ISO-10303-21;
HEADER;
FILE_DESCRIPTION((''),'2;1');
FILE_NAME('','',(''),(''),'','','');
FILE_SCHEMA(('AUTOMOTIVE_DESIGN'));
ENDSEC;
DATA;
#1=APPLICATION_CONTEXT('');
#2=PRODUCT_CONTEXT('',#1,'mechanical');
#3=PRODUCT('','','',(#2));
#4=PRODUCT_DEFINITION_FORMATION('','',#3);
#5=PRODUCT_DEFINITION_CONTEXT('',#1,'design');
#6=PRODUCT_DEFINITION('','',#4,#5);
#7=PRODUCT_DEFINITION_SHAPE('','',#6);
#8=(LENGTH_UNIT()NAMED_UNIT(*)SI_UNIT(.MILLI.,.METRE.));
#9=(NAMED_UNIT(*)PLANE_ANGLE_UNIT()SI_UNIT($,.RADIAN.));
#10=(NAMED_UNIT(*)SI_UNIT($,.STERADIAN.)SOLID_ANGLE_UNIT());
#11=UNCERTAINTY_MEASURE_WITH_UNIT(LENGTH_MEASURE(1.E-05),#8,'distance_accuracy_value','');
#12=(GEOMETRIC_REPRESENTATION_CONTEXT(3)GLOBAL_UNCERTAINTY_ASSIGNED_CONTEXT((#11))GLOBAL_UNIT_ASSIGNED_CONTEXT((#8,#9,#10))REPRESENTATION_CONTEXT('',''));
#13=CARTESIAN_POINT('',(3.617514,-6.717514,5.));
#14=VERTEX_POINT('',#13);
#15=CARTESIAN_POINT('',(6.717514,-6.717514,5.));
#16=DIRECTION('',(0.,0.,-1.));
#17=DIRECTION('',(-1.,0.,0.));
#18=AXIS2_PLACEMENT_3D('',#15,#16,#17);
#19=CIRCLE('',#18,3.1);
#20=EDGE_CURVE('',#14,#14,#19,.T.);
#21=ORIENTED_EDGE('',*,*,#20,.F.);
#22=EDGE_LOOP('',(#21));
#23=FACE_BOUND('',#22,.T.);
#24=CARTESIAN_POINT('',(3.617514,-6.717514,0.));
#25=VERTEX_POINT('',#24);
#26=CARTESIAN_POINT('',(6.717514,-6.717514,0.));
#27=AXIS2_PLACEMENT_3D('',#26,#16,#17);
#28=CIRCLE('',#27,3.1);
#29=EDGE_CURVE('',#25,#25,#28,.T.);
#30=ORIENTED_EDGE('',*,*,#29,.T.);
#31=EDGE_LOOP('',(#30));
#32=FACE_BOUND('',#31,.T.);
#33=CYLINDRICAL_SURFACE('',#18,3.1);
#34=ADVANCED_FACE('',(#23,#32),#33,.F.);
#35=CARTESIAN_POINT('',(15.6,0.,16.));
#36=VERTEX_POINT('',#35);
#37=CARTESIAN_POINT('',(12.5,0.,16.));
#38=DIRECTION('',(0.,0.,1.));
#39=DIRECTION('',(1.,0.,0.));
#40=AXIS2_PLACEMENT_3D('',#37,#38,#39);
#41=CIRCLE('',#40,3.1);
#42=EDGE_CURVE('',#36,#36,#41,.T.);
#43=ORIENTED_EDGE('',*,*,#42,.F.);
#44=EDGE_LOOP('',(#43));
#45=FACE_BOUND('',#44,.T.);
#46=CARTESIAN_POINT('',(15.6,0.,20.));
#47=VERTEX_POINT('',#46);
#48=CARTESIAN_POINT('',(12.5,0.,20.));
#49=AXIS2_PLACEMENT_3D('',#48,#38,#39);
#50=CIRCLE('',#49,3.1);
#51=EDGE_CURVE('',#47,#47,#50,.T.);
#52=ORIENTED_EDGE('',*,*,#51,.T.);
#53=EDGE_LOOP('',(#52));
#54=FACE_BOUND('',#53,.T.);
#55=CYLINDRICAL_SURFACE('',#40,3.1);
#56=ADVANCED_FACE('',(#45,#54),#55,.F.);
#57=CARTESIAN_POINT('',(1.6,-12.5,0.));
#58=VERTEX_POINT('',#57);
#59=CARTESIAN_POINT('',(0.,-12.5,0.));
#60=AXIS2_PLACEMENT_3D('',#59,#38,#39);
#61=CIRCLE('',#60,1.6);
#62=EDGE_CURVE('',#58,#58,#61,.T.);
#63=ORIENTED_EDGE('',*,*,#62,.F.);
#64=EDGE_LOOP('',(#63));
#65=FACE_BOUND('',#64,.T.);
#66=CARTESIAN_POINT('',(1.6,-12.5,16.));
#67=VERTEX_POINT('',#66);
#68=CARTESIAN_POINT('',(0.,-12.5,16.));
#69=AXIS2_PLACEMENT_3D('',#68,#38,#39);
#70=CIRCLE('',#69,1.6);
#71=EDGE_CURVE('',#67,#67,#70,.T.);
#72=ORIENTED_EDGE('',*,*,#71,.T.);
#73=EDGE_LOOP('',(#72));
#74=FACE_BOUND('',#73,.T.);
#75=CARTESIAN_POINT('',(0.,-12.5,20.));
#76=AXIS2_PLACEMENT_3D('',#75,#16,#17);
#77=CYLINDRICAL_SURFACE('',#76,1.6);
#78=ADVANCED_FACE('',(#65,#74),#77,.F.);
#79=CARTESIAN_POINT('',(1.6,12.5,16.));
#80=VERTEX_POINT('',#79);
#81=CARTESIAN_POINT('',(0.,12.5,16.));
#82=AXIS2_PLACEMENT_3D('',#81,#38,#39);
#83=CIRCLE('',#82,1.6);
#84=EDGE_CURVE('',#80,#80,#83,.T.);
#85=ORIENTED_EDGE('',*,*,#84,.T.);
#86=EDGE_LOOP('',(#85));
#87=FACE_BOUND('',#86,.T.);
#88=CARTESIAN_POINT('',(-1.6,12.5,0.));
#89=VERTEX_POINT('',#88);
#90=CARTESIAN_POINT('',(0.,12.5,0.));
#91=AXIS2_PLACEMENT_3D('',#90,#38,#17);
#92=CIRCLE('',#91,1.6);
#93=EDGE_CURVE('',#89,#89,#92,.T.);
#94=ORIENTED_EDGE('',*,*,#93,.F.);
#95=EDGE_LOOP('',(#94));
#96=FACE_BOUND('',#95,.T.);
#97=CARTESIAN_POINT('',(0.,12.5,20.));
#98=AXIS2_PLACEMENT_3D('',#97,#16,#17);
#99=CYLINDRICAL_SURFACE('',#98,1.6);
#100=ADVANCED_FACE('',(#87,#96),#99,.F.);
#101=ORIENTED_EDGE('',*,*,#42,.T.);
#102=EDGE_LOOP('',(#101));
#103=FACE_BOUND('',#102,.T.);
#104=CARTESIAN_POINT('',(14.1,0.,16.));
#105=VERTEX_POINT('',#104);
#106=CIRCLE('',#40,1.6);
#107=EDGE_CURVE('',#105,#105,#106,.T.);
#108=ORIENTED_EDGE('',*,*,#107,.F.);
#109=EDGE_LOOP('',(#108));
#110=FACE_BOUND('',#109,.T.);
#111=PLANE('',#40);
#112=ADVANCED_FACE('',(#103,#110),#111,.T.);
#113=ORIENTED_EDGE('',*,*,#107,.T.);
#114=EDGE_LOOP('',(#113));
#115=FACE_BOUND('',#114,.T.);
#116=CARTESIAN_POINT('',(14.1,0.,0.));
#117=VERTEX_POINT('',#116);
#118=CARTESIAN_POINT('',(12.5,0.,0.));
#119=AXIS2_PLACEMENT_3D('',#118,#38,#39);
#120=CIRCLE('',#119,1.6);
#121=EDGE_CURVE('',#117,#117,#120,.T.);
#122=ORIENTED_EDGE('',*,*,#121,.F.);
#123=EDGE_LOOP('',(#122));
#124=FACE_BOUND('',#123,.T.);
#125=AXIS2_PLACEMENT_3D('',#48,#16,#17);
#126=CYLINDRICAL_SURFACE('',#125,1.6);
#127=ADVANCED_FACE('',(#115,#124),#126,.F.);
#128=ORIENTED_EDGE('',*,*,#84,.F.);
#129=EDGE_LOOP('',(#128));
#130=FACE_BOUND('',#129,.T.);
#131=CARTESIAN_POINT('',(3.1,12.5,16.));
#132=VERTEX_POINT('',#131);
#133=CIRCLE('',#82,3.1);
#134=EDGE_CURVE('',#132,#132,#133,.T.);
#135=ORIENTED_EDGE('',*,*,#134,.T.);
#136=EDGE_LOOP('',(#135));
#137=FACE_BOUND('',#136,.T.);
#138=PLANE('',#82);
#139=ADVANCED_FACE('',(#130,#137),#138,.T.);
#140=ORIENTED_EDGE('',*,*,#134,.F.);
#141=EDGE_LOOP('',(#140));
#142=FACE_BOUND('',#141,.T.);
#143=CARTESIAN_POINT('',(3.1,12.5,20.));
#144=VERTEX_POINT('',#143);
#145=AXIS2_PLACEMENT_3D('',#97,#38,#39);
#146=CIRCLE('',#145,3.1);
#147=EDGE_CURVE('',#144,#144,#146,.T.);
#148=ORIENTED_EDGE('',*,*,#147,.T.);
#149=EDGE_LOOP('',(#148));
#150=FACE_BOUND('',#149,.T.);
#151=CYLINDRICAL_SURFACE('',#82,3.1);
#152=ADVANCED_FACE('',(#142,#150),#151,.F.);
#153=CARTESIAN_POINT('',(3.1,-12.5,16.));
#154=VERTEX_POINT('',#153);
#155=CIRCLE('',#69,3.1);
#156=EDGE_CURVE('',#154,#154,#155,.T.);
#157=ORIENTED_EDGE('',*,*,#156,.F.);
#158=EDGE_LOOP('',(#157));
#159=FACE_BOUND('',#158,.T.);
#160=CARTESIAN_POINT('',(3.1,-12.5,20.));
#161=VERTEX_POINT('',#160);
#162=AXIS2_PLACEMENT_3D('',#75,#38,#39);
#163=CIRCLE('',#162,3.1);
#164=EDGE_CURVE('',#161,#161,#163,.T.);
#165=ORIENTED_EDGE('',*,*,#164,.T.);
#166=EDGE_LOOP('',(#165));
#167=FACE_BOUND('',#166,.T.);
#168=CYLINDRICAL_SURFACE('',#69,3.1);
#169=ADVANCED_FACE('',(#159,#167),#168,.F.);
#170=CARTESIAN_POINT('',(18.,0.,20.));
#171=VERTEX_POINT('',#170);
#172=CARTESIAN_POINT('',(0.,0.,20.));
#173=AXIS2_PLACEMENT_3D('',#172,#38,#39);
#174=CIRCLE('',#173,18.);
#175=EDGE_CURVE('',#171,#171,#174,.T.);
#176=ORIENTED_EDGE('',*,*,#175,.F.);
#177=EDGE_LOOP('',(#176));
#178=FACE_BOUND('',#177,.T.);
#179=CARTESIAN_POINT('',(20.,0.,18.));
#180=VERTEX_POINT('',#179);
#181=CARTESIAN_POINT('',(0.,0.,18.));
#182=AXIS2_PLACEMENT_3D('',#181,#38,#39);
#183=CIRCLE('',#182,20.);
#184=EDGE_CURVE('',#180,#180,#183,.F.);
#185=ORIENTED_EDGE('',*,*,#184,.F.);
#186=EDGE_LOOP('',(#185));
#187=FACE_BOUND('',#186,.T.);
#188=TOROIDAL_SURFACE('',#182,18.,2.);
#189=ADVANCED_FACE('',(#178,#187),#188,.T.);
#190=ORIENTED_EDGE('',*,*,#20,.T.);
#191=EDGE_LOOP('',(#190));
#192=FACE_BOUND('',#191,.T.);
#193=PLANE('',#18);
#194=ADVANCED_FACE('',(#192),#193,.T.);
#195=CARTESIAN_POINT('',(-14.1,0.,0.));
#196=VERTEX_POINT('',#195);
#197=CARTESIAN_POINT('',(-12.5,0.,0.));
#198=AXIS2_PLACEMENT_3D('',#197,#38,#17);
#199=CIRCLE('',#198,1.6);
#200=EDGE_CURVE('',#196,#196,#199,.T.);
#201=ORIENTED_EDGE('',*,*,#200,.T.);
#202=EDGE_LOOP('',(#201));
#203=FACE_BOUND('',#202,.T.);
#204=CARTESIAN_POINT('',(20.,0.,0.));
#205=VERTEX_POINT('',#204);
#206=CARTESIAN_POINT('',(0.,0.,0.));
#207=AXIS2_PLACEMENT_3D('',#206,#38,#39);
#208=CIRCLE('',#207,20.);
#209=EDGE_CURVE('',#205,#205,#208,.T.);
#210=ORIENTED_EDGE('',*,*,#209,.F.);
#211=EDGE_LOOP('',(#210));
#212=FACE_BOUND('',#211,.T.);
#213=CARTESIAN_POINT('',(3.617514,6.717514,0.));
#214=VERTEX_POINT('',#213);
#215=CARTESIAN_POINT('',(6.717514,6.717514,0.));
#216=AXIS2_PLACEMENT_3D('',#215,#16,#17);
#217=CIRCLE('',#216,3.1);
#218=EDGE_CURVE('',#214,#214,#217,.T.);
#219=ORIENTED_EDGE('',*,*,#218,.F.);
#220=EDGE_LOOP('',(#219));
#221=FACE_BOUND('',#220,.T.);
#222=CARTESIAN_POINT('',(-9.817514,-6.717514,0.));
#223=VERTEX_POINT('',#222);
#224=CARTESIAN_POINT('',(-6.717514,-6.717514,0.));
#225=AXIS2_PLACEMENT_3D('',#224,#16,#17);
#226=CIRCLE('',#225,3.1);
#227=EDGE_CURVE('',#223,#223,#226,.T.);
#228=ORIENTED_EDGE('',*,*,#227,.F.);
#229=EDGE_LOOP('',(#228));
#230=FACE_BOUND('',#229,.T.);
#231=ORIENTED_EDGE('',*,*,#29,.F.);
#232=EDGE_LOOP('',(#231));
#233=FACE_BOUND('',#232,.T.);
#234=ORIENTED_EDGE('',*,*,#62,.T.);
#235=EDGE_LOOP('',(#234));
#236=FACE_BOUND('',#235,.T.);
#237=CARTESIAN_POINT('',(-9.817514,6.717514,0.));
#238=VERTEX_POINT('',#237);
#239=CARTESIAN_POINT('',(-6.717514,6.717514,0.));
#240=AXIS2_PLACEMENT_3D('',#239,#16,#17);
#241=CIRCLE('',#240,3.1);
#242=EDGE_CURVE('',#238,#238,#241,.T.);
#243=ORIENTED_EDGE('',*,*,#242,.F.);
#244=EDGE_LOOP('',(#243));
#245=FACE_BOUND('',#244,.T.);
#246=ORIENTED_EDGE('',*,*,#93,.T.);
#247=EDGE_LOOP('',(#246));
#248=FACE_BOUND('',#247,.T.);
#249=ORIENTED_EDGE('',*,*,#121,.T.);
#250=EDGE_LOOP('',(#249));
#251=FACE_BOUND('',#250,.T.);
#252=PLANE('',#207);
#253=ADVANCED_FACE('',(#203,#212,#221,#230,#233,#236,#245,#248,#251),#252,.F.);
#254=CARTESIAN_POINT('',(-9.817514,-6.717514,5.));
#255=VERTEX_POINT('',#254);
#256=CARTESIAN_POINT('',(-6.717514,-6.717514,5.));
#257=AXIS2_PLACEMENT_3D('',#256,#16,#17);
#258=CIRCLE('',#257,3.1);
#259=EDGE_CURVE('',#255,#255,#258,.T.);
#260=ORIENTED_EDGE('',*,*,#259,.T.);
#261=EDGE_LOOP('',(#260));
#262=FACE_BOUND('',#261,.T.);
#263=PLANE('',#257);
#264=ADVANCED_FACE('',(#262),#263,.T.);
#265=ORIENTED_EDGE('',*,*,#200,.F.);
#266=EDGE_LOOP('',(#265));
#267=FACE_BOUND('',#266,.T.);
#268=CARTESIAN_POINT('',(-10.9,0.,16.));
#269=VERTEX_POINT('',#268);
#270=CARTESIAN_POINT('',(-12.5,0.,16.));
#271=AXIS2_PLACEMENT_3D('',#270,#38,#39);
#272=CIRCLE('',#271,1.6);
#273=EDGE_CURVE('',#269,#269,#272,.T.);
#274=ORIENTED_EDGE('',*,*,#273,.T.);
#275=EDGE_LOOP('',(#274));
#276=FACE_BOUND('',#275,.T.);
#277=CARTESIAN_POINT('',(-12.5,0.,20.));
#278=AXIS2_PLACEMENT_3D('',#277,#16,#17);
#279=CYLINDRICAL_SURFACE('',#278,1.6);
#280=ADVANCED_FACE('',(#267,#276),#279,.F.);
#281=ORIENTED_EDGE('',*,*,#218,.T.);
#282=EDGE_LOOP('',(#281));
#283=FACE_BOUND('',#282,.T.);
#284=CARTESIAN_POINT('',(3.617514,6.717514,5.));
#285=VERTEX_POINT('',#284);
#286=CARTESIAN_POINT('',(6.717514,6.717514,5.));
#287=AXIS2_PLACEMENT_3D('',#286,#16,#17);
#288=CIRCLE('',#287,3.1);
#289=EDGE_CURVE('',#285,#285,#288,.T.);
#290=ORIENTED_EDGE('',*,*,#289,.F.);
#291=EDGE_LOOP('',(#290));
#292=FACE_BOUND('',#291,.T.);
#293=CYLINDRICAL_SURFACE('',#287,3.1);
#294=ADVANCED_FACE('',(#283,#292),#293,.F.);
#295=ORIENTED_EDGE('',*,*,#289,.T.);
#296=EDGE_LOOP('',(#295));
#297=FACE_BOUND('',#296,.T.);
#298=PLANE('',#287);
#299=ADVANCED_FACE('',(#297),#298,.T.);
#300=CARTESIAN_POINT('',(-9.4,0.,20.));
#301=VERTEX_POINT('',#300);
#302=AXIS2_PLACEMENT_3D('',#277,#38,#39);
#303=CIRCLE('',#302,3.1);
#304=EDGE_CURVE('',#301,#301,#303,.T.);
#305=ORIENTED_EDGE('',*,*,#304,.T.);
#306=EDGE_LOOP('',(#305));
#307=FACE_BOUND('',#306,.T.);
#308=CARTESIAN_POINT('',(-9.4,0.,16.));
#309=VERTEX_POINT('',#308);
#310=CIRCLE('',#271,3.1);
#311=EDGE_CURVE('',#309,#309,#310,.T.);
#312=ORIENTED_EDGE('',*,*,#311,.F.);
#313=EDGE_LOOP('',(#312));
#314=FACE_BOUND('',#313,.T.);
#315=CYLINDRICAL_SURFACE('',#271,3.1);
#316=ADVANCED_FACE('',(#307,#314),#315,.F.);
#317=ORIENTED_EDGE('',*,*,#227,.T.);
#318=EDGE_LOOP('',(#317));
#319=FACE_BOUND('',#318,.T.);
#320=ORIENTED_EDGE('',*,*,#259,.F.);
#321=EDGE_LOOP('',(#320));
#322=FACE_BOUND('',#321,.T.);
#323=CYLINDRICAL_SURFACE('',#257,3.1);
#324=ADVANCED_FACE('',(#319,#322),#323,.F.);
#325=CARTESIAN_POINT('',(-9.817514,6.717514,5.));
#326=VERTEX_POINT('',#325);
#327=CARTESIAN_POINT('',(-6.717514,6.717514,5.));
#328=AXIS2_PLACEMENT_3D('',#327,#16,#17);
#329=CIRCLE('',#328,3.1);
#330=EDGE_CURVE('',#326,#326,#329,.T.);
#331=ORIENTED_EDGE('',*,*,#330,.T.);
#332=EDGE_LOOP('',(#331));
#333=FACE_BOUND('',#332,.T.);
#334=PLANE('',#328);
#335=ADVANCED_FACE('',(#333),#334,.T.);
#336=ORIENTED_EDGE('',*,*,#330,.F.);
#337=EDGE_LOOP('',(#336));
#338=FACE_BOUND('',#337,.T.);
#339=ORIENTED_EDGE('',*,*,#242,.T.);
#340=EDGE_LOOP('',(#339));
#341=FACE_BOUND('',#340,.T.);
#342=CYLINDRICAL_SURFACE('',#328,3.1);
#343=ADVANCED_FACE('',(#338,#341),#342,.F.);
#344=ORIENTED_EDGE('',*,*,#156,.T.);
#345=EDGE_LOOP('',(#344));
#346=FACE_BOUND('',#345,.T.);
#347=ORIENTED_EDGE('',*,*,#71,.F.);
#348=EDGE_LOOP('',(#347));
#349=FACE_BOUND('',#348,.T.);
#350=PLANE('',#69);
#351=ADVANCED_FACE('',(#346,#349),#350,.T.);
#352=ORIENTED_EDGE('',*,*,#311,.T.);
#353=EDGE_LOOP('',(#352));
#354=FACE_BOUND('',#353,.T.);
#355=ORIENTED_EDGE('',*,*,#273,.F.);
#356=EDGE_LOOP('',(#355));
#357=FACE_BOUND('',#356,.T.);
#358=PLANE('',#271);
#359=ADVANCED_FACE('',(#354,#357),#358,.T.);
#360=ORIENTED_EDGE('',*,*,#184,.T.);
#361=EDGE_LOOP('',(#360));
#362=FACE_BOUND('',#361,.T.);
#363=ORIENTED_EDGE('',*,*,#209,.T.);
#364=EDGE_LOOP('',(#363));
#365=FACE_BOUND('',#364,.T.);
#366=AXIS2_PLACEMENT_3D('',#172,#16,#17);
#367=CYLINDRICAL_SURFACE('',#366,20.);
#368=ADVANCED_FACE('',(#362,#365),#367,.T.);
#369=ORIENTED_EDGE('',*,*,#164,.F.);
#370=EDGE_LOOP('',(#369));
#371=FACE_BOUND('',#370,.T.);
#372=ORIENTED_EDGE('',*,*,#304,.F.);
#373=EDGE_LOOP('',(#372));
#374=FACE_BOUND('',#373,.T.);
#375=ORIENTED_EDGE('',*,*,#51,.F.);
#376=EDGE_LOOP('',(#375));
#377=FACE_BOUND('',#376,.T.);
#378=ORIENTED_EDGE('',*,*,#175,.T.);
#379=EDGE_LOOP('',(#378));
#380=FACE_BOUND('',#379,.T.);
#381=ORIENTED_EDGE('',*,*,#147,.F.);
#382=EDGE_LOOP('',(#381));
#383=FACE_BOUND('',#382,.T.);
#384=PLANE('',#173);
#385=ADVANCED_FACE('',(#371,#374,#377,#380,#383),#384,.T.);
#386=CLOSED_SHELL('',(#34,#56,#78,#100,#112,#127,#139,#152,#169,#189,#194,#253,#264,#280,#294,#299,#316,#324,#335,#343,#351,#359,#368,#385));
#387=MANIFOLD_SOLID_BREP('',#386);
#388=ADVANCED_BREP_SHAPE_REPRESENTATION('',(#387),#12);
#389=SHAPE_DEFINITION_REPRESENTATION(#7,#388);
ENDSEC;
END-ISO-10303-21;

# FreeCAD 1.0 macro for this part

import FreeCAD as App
import Part
import Sketcher
Q = App.Units.Quantity


def edges_at(feature, points):
    """Names of the edges that pass closest to the given points."""
    edges = feature.Shape.Edges
    near = lambda p: min(range(len(edges)), key=lambda i: edges[i].distToShape(Part.Vertex(*p))[0])
    return sorted({f"Edge{near(p) + 1}" for p in points})

doc = App.newDocument("Part")
body = doc.addObject("PartDesign::Body", "Body")

sketch1 = doc.addObject("Sketcher::SketchObject", "Sketch")
body.addObject(sketch1)
sketch1.AttachmentSupport = (doc.XY_Plane, [""])
sketch1.MapMode = "FlatFace"
sketch1.addGeometry([
    Part.Circle(App.Vector(0, 0, 0), App.Vector(0, 0, 1), 20),
    Part.Circle(App.Vector(0, -12.5, 0), App.Vector(0, 0, 1), 1.6),
    Part.Circle(App.Vector(-12.5, 0, 0), App.Vector(0, 0, 1), 1.6),
    Part.Circle(App.Vector(12.5, 0, 0), App.Vector(0, 0, 1), 1.6),
    Part.Circle(App.Vector(0, 12.5, 0), App.Vector(0, 0, 1), 1.6),
], False)
sketch1.addConstraint([
    Sketcher.Constraint("Coincident", 0, 3, -1, 1),
    Sketcher.Constraint("Equal", 1, 2),
    Sketcher.Constraint("Equal", 2, 3),
    Sketcher.Constraint("Equal", 3, 4),
    Sketcher.Constraint("Symmetric", 2, 3, 3, 3, -1, 1),
    Sketcher.Constraint("Symmetric", 1, 3, 4, 3, -1, 1),
    Sketcher.Constraint("PointOnObject", 1, 3, -2),
    Sketcher.Constraint("PointOnObject", 2, 3, -1),
    Sketcher.Constraint("Diameter", 0, Q("40 mm")),
    Sketcher.Constraint("Diameter", 1, Q("3.2 mm")),
    Sketcher.Constraint("DistanceX", 2, 3, 3, 3, Q("25 mm")),
    Sketcher.Constraint("DistanceY", 1, 3, 4, 3, Q("25 mm")),
])
pad1 = doc.addObject("PartDesign::Pad", "Pad")
body.addObject(pad1)
pad1.Profile = sketch1
pad1.Length = 20

sketch2 = doc.addObject("Sketcher::SketchObject", "Sketch001")
body.addObject(sketch2)
sketch2.AttachmentSupport = (doc.XY_Plane, [""])
sketch2.MapMode = "FlatFace"
sketch2.AttachmentOffset = App.Placement(App.Vector(0, 0, 20), App.Rotation())
sketch2.addGeometry([
    Part.Circle(App.Vector(-12.5, 0, 0), App.Vector(0, 0, 1), 3.1),
    Part.Circle(App.Vector(0, -12.5, 0), App.Vector(0, 0, 1), 3.1),
    Part.Circle(App.Vector(12.5, 0, 0), App.Vector(0, 0, 1), 3.1),
    Part.Circle(App.Vector(0, 12.5, 0), App.Vector(0, 0, 1), 3.1),
], False)
sketch2.addConstraint([
    Sketcher.Constraint("Equal", 0, 1),
    Sketcher.Constraint("Equal", 1, 2),
    Sketcher.Constraint("Equal", 2, 3),
    Sketcher.Constraint("Symmetric", 0, 3, 2, 3, -1, 1),
    Sketcher.Constraint("Symmetric", 1, 3, 3, 3, -1, 1),
    Sketcher.Constraint("PointOnObject", 0, 3, -1),
    Sketcher.Constraint("PointOnObject", 1, 3, -2),
    Sketcher.Constraint("Diameter", 0, Q("6.2 mm")),
    Sketcher.Constraint("DistanceX", 0, 3, 2, 3, Q("25 mm")),
    Sketcher.Constraint("DistanceY", 1, 3, 3, 3, Q("25 mm")),
])
pocket1 = doc.addObject("PartDesign::Pocket", "Pocket")
body.addObject(pocket1)
pocket1.Profile = sketch2
pocket1.Length = 4

sketch3 = doc.addObject("Sketcher::SketchObject", "Sketch002")
body.addObject(sketch3)
sketch3.AttachmentSupport = (doc.XY_Plane, [""])
sketch3.MapMode = "FlatFace"
sketch3.addGeometry([
    Part.Circle(App.Vector(6.7, 6.7, 0), App.Vector(0, 0, 1), 3.1),
    Part.Circle(App.Vector(-6.7, 6.7, 0), App.Vector(0, 0, 1), 3.1),
    Part.Circle(App.Vector(-6.7, -6.7, 0), App.Vector(0, 0, 1), 3.1),
    Part.Circle(App.Vector(6.7, -6.7, 0), App.Vector(0, 0, 1), 3.1),
], False)
sketch3.addConstraint([
    Sketcher.Constraint("Equal", 0, 1),
    Sketcher.Constraint("Equal", 1, 2),
    Sketcher.Constraint("Equal", 2, 3),
    Sketcher.Constraint("Symmetric", 0, 3, 2, 3, -1, 1),
    Sketcher.Constraint("Symmetric", 1, 3, 3, 3, -1, 1),
    Sketcher.Constraint("Symmetric", 0, 3, 1, 3, -2),
    Sketcher.Constraint("Diameter", 0, Q("6.2 mm")),
    Sketcher.Constraint("DistanceX", 1, 3, 0, 3, Q("13.435029 mm")),
    Sketcher.Constraint("DistanceY", 2, 3, 1, 3, Q("13.435029 mm")),
])
pocket2 = doc.addObject("PartDesign::Pocket", "Pocket001")
body.addObject(pocket2)
pocket2.Profile = sketch3
pocket2.Length = 5
pocket2.Reversed = True
doc.recompute()

fillet = doc.addObject("PartDesign::Fillet", "Fillet")
body.addObject(fillet)
fillet.Base = (pocket2, edges_at(pocket2, [(-20, 0, 20)]))
fillet.Radius = 2

doc.recompute()
